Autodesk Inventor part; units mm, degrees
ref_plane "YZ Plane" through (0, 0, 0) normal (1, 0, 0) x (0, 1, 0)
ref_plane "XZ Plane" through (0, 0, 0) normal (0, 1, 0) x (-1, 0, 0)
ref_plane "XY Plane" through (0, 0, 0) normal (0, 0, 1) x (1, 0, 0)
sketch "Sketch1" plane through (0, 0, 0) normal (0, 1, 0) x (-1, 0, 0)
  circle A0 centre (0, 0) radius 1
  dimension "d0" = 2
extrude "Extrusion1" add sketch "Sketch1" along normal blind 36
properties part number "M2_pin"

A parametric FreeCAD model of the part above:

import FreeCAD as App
import Part
import Sketcher

V = App.Vector
Q = App.Units.Quantity

doc = App.newDocument("Part")
body = doc.addObject("PartDesign::Body", "Body")

sketch1 = doc.addObject("Sketcher::SketchObject", "Sketch")
body.addObject(sketch1)
sketch1.AttachmentSupport = (doc.XZ_Plane, [""])
sketch1.MapMode = "FlatFace"
sketch1.addGeometry(Part.Circle(V(0, 0, 0), V(0, 0, 1), 1), False)
sketch1.addConstraint(Sketcher.Constraint("Coincident", 0, 3, -1, 1))
sketch1.addConstraint(Sketcher.Constraint("Diameter", 0, Q("2 mm")))
pad1 = doc.addObject("PartDesign::Pad", "Pad")
body.addObject(pad1)
pad1.Profile = sketch1
pad1.Length = 36
pad1.Reversed = True

doc.recompute()
